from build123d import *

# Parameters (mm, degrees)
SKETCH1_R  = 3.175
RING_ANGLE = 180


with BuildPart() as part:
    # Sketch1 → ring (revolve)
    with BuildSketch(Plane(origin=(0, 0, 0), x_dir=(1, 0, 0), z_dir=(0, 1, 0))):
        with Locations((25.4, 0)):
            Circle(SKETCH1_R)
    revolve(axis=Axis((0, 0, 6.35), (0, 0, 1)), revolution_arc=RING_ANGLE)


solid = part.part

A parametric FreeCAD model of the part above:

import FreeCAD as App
import Part
import Sketcher
from FreeCAD import Vector
Q = App.Units.Quantity

doc = App.newDocument("Part")
body = doc.addObject("PartDesign::Body", "Body")

# Sketch on XZ plane
sketch1 = body.newObject("Sketcher::SketchObject", "Sketch")
sketch1.AttachmentSupport = (doc.getObject("XZ_Plane"), [""])
sketch1.MapMode = "FlatFace"
sketch1.addGeometry(Part.Circle(Vector(25.4, 0, 0), Vector(0, 0, 1), 3.175), False)
sketch1.addConstraint(Sketcher.Constraint("PointOnObject", 0, 3, -1))
sketch1.addConstraint(Sketcher.Constraint("Diameter", 0, Q("0.25 in")))
sketch1.addConstraint(Sketcher.Constraint("DistanceX", -1, 1, 0, 3, Q("1 in")))
revolution = body.newObject("PartDesign::Revolution", "Revolution")
revolution.Profile = sketch1
revolution.ReferenceAxis = (sketch1, ["V_Axis"])
revolution.Angle = 180

doc.recompute()
